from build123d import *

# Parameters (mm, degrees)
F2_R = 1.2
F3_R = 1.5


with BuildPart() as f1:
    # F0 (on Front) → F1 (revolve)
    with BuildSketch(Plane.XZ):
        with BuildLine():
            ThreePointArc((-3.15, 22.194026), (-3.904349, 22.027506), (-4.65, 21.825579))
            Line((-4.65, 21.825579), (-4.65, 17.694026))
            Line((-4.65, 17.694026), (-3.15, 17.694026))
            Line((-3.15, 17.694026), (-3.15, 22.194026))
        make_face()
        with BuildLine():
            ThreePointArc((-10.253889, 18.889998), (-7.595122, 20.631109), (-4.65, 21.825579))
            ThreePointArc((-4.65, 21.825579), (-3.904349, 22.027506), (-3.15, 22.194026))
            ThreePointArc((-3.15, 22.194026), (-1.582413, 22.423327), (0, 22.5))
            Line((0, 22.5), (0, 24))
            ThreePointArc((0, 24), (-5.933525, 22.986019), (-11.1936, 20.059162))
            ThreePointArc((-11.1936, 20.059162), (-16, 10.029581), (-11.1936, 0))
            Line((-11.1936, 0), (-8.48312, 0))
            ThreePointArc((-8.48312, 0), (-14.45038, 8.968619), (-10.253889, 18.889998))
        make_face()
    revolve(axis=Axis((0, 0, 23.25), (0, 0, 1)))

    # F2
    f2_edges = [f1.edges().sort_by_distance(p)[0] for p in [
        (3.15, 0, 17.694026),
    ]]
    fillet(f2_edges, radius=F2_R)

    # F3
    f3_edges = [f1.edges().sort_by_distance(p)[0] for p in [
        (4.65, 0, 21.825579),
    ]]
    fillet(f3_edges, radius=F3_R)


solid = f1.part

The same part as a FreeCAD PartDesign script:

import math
import FreeCAD as App
import Part
import Sketcher


def edges_at(feature, points):
    """Names of the edges that pass closest to the given points."""
    edges = feature.Shape.Edges
    near = lambda p: min(range(len(edges)), key=lambda i: edges[i].distToShape(Part.Vertex(*p))[0])
    return sorted({f"Edge{near(p) + 1}" for p in points})

doc = App.newDocument("Part")
params = doc.addObject("Spreadsheet::Sheet", "Params")
for row, (alias, value) in enumerate([
    ("sketch1_width", "1.5 mm"),
    ("sketch1_height", "4.5 mm"),
    ("revolution_angle", "360 deg"),
    ("fillet_radius", "1.2 mm"),
    ("fillet2_radius", "1.5 mm"),
], start=1):
    params.set(f"A{row}", alias)
    params.set(f"B{row}", "=" + value)
    params.setAlias(f"B{row}", alias)

body = doc.addObject("PartDesign::Body", "Body")

sketch1 = body.newObject("Sketcher::SketchObject", "Sketch")
sketch1.AttachmentSupport = (doc.getObject("XZ_Plane"), [""])
sketch1.MapMode = "FlatFace"
sketch1.addGeometry([
    Part.LineSegment(App.Vector(-4.7, 21.8, 0), App.Vector(-4.7, 17.7, 0)),
    Part.LineSegment(App.Vector(-4.7, 17.7, 0), App.Vector(-3.1, 17.7, 0)),
    Part.LineSegment(App.Vector(-3.1, 17.7, 0), App.Vector(-3.1, 22.2, 0)),
    Part.ArcOfCircle(Part.Circle(App.Vector(0, 6.1, 0), App.Vector(0, 0, 1), 16.4), math.radians(90), math.radians(101.1)),
    Part.LineSegment(App.Vector(0, 22.5, 0), App.Vector(0, 24, 0)),
    Part.ArcOfCircle(Part.Circle(App.Vector(0, 6.1, 0), App.Vector(0, 0, 1), 17.9), math.radians(90), math.radians(129)),
    Part.ArcOfCircle(Part.Circle(App.Vector(-3.1, 10, 0), App.Vector(0, 0, 1), 12.9), math.radians(129), math.radians(231)),
    Part.LineSegment(App.Vector(-11.2, 0, 0), App.Vector(-8.5, 0, 0)),
    Part.ArcOfCircle(Part.Circle(App.Vector(-3.1, 10, 0), App.Vector(0, 0, 1), 11.4), math.radians(129), math.radians(242)),
    Part.ArcOfCircle(Part.Circle(App.Vector(0, 6.1, 0), App.Vector(0, 0, 1), 16.4), math.radians(107), math.radians(129)),
], False)
sketch1.addConstraint([
    Sketcher.Constraint("Coincident", 0, 2, 1, 1),
    Sketcher.Constraint("Coincident", 1, 2, 2, 1),
    Sketcher.Constraint("Coincident", 2, 2, 3, 2),
    Sketcher.Constraint("Coincident", 3, 1, 4, 1),
    Sketcher.Constraint("Coincident", 4, 2, 5, 1),
    Sketcher.Constraint("Tangent", 5, 2, 6, 1),
    Sketcher.Constraint("Coincident", 6, 2, 7, 1),
    Sketcher.Constraint("Coincident", 7, 2, 8, 2),
    Sketcher.Constraint("Tangent", 8, 1, 9, 2),
    Sketcher.Constraint("Coincident", 9, 1, 0, 1),
    Sketcher.Constraint("Vertical", 0),
    Sketcher.Constraint("Horizontal", 1),
    Sketcher.Constraint("Vertical", 2),
    Sketcher.Constraint("Vertical", 4),
    Sketcher.Constraint("Horizontal", 7),
    Sketcher.Constraint("Coincident", 8, 3, 6, 3),
    Sketcher.Constraint("Coincident", 9, 3, 5, 3),
    Sketcher.Constraint("PointOnObject", 5, 3, -2),
    Sketcher.Constraint("PointOnObject", 3, 1, -2),
    Sketcher.Constraint("PointOnObject", 6, 2, -1),
    Sketcher.Constraint("Vertical", 3, 3, 9, 3),
    Sketcher.Constraint("Vertical", 5, 2, 6, 2),
    Sketcher.Constraint("Equal", 1, 4),
    Sketcher.Constraint("DistanceX", 1, 1, 1, 2, 1.5),
    Sketcher.Constraint("DistanceY", 2, 1, 2, 2, 4.5),
    Sketcher.Constraint("DistanceY", -1, 1, 4, 2, 24.0),
    Sketcher.Constraint("DistanceX", 0, 2, -1, 1, 4.65),
    Sketcher.Constraint("DistanceY", -1, 1, 8, 1, 18.889998),
    Sketcher.Constraint("Radius", 9, 16.367629),
    Sketcher.Constraint("Radius", 3, 16.367576),
    Sketcher.Constraint("Radius", 5, 17.867633),
])
sketch1.setExpression("Constraints[23]", "Params.sketch1_width")
sketch1.setExpression("Constraints[24]", "Params.sketch1_height")
revolution = body.newObject("PartDesign::Revolution", "Revolution")
revolution.Profile = sketch1
revolution.ReferenceAxis = (sketch1, ["V_Axis"])
revolution.setExpression("Angle", "Params.revolution_angle")
doc.recompute()

fillet = body.newObject("PartDesign::Fillet", "Fillet")
fillet.Base = (revolution, edges_at(revolution, [(3.15, 0, 17.694)]))
fillet.setExpression("Radius", "Params.fillet_radius")
doc.recompute()

fillet2 = body.newObject("PartDesign::Fillet", "Fillet001")
fillet2.Base = (fillet, edges_at(fillet, [(4.65, 0, 21.826)]))
fillet2.setExpression("Radius", "Params.fillet2_radius")

doc.recompute()
